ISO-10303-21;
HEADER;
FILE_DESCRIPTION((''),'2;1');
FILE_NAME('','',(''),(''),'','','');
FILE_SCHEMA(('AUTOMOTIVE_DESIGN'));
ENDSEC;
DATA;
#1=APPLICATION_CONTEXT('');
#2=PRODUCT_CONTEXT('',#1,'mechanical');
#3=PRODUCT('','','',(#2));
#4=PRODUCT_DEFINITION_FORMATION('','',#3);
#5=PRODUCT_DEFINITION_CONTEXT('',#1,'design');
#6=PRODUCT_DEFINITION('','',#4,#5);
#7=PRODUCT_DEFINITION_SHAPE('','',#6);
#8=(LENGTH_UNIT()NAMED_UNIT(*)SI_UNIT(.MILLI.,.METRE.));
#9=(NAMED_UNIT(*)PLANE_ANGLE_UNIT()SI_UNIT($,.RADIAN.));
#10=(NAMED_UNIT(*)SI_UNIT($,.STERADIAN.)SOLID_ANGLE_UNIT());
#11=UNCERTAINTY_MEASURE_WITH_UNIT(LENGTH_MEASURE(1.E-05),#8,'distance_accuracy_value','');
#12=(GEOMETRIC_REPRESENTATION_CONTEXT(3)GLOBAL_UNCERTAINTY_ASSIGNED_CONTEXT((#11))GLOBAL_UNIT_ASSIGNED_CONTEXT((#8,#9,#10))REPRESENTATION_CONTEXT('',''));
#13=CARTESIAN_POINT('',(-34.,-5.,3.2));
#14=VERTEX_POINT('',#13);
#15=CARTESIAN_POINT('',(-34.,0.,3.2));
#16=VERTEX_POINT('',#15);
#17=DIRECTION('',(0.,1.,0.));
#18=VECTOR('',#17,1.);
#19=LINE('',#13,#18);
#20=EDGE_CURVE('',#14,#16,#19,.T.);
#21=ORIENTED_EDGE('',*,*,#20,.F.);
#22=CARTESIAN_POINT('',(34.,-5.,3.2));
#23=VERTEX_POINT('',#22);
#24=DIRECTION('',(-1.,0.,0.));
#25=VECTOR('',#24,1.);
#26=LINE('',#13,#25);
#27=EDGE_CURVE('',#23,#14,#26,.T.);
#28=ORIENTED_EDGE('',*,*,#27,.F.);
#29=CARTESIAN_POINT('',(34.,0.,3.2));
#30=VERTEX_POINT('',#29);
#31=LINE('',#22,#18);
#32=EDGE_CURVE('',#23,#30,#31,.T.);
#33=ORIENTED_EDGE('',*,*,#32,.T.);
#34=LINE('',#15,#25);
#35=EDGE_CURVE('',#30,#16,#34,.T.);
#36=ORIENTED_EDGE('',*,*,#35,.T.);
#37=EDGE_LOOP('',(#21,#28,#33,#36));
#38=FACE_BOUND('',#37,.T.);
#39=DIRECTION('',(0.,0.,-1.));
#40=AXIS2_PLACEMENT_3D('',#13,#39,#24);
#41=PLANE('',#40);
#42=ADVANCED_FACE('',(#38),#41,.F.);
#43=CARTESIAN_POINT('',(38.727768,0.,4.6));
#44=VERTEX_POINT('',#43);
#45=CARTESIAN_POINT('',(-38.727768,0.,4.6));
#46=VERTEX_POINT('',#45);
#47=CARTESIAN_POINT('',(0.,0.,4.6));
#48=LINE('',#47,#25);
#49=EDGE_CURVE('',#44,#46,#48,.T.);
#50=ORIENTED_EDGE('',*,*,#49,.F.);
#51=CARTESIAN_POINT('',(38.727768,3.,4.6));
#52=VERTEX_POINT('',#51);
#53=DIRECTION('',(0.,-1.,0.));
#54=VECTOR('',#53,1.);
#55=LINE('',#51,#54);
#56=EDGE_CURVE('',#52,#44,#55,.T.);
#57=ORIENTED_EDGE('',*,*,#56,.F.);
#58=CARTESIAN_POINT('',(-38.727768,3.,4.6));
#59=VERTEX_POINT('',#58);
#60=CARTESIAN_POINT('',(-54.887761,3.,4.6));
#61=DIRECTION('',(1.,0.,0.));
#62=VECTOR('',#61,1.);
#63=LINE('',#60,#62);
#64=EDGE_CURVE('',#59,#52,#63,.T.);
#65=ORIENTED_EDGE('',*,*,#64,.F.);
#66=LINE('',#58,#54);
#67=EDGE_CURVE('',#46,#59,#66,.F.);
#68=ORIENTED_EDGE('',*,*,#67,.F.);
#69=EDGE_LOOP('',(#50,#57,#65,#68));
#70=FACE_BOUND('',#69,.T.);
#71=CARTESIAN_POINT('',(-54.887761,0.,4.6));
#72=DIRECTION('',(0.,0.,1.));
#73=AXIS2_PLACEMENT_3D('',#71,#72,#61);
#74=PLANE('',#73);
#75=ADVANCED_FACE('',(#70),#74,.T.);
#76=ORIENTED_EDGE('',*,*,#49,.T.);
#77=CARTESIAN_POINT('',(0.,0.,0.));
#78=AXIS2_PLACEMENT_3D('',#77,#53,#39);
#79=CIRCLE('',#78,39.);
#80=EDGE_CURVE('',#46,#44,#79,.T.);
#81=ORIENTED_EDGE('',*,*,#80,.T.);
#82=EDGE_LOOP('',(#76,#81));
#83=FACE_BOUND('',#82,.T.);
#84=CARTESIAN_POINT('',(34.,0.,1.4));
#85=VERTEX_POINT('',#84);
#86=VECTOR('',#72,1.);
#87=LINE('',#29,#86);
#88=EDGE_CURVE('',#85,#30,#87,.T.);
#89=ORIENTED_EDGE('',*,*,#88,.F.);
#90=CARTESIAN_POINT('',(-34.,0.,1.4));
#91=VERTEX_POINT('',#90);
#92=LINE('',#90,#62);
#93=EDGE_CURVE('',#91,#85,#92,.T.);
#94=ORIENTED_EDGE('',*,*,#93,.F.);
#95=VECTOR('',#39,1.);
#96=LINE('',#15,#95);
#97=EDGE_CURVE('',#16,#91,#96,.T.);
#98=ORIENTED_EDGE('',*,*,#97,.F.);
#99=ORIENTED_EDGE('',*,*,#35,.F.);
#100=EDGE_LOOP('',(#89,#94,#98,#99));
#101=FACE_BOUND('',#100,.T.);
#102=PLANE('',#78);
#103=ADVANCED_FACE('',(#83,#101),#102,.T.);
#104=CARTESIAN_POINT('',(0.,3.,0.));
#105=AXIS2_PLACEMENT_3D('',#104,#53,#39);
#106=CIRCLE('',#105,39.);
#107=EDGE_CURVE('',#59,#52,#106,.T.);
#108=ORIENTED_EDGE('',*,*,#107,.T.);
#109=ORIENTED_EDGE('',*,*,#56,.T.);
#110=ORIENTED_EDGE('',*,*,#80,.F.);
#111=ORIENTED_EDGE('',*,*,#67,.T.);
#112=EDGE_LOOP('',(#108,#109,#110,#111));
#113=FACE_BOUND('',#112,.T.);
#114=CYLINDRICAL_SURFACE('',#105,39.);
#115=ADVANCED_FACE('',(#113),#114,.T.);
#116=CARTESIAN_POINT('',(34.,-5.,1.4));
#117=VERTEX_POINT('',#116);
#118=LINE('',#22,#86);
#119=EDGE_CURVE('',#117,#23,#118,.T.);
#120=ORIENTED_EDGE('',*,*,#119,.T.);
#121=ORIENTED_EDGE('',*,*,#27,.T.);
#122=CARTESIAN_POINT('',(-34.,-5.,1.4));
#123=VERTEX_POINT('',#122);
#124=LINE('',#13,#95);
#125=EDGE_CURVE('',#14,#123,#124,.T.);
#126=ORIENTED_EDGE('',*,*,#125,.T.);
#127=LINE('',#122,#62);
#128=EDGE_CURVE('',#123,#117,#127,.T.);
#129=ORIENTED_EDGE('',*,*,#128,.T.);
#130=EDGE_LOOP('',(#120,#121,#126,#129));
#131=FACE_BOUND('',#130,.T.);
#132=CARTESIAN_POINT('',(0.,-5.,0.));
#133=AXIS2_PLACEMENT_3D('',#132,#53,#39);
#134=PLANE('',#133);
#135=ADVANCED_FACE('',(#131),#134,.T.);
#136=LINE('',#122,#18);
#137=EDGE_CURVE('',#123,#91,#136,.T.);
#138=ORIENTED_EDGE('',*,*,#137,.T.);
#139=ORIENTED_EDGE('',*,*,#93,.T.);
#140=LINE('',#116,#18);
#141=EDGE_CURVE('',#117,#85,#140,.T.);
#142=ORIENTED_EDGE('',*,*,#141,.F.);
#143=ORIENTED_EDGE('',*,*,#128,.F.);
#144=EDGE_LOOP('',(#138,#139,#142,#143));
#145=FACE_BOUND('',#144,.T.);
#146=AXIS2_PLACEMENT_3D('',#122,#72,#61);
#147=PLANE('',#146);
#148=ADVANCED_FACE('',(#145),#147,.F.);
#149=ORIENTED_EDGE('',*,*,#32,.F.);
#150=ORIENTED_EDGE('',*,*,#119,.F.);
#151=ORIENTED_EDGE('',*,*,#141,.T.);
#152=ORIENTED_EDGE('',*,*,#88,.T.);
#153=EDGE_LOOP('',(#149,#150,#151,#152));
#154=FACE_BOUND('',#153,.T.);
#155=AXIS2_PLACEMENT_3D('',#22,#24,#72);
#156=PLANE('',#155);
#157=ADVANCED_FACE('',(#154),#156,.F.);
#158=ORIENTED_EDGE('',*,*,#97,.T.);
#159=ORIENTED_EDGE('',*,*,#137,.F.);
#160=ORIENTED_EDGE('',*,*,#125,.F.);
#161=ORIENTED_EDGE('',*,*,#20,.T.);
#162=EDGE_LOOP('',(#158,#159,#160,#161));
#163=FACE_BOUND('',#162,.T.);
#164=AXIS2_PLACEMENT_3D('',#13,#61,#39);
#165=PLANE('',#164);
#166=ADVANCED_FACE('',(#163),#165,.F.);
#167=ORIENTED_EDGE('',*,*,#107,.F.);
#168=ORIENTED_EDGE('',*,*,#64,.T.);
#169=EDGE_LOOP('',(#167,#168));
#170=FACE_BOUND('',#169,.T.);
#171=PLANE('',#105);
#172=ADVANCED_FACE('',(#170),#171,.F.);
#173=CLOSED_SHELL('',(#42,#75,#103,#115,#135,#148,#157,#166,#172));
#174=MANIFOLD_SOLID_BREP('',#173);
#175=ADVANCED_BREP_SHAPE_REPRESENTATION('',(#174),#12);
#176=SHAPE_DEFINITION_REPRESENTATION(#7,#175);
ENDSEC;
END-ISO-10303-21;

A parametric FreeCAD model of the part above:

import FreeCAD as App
import Part
import Sketcher

V = App.Vector

doc = App.newDocument("Part")
params = doc.addObject("Spreadsheet::Sheet", "Params")
for row, (alias, value) in enumerate([
    ("sketch1_diameter", "78 mm"),
    ("pad1_length", "3 mm"),
    ("pocket1_length", "3 mm"),
    ("sketch3_width", "68 mm"),
    ("sketch3_height", "1.8 mm"),
    ("pad2_length", "5 mm"),
    ("sketch4_width", "68 mm"),
    ("sketch4_height", "1.8 mm"),
    ("pad3_length", "5 mm"),
], start=1):
    params.set(f"A{row}", alias)
    params.set(f"B{row}", "=" + value)
    params.setAlias(f"B{row}", alias)

body = doc.addObject("PartDesign::Body", "Body")

sketch1 = doc.addObject("Sketcher::SketchObject", "Sketch")
body.addObject(sketch1)
sketch1.AttachmentSupport = (doc.XZ_Plane, [""])
sketch1.MapMode = "FlatFace"
sketch1.addGeometry(Part.Circle(V(0, 0, 0), V(0, 0, 1), 39), False)
sketch1.addConstraint([
    Sketcher.Constraint("Coincident", 0, 3, -1, 1),
    Sketcher.Constraint("Diameter", 0, 78.0),
])
sketch1.setExpression("Constraints[1]", "Params.sketch1_diameter")
pad1 = doc.addObject("PartDesign::Pad", "Pad")
body.addObject(pad1)
pad1.Profile = sketch1
pad1.setExpression("Length", "Params.pad1_length")
pad1.Reversed = True

sketch2 = doc.addObject("Sketcher::SketchObject", "Sketch001")
body.addObject(sketch2)
sketch2.AttachmentSupport = (doc.XZ_Plane, [""])
sketch2.MapMode = "FlatFace"
sketch2.AttachmentOffset = App.Placement(V(0, 0, -3), App.Rotation())
sketch2.addGeometry([
    Part.LineSegment(V(-55, 5, 0), V(-55, 45, 0)),
    Part.LineSegment(V(-55, 45, 0), V(56, 45, 0)),
    Part.LineSegment(V(56, 45, 0), V(56, 5, 0)),
    Part.LineSegment(V(56, 5, 0), V(-55, 5, 0)),
], False)
sketch2.addConstraint([
    Sketcher.Constraint("Coincident", 0, 2, 1, 1),
    Sketcher.Constraint("Coincident", 1, 2, 2, 1),
    Sketcher.Constraint("Coincident", 2, 2, 3, 1),
    Sketcher.Constraint("Coincident", 3, 2, 0, 1),
    Sketcher.Constraint("Vertical", 0),
    Sketcher.Constraint("Horizontal", 1),
    Sketcher.Constraint("Vertical", 2),
    Sketcher.Constraint("Horizontal", 3),
    Sketcher.Constraint("DistanceY", -1, 1, 2, 2, 4.6),
    Sketcher.Constraint("DistanceX", 1, 1, 1, 2, 110.988466),
    Sketcher.Constraint("DistanceY", 0, 1, 0, 2, 40.729207),
    Sketcher.Constraint("DistanceX", 0, 2, -1, 1, 54.887761),
])
pocket1 = doc.addObject("PartDesign::Pocket", "Pocket")
body.addObject(pocket1)
pocket1.Profile = sketch2
pocket1.setExpression("Length", "Params.pocket1_length")
pocket1.Reversed = True

sketch3 = doc.addObject("Sketcher::SketchObject", "Sketch002")
body.addObject(sketch3)
sketch3.AttachmentSupport = (doc.XZ_Plane, [""])
sketch3.MapMode = "FlatFace"
sketch3.addGeometry([
    Part.LineSegment(V(-34, 3.2, 0), V(-34, 1.4, 0)),
    Part.LineSegment(V(-34, 1.4, 0), V(34, 1.4, 0)),
    Part.LineSegment(V(34, 1.4, 0), V(34, 3.2, 0)),
    Part.LineSegment(V(34, 3.2, 0), V(-34, 3.2, 0)),
], False)
sketch3.addConstraint([
    Sketcher.Constraint("Coincident", 0, 2, 1, 1),
    Sketcher.Constraint("Coincident", 1, 2, 2, 1),
    Sketcher.Constraint("Coincident", 2, 2, 3, 1),
    Sketcher.Constraint("Coincident", 3, 2, 0, 1),
    Sketcher.Constraint("Vertical", 0),
    Sketcher.Constraint("Horizontal", 1),
    Sketcher.Constraint("Vertical", 2),
    Sketcher.Constraint("Horizontal", 3),
    Sketcher.Constraint("DistanceX", 1, 1, 1, 2, 68.0),
    Sketcher.Constraint("DistanceY", 0, 2, 0, 1, 1.8),
    Sketcher.Constraint("DistanceX", 0, 2, -1, 1, 34.0),
    Sketcher.Constraint("DistanceY", -1, 1, 0, 2, 1.4),
])
sketch3.setExpression("Constraints[8]", "Params.sketch3_width")
sketch3.setExpression("Constraints[9]", "Params.sketch3_height")
pad2 = doc.addObject("PartDesign::Pad", "Pad001")
body.addObject(pad2)
pad2.Profile = sketch3
pad2.setExpression("Length", "Params.pad2_length")

sketch4 = doc.addObject("Sketcher::SketchObject", "Sketch003")
body.addObject(sketch4)
sketch4.AttachmentSupport = (doc.XZ_Plane, [""])
sketch4.MapMode = "FlatFace"
sketch4.addGeometry([
    Part.LineSegment(V(-34, 3.2, 0), V(-34, 1.4, 0)),
    Part.LineSegment(V(-34, 1.4, 0), V(34, 1.4, 0)),
    Part.LineSegment(V(34, 1.4, 0), V(34, 3.2, 0)),
    Part.LineSegment(V(34, 3.2, 0), V(-34, 3.2, 0)),
], False)
sketch4.addConstraint([
    Sketcher.Constraint("Coincident", 0, 2, 1, 1),
    Sketcher.Constraint("Coincident", 1, 2, 2, 1),
    Sketcher.Constraint("Coincident", 2, 2, 3, 1),
    Sketcher.Constraint("Coincident", 3, 2, 0, 1),
    Sketcher.Constraint("Vertical", 0),
    Sketcher.Constraint("Horizontal", 1),
    Sketcher.Constraint("Vertical", 2),
    Sketcher.Constraint("Horizontal", 3),
    Sketcher.Constraint("DistanceX", 1, 1, 1, 2, 68.0),
    Sketcher.Constraint("DistanceY", 0, 2, 0, 1, 1.8),
    Sketcher.Constraint("DistanceX", 0, 2, -1, 1, 34.0),
    Sketcher.Constraint("DistanceY", -1, 1, 0, 2, 1.4),
])
sketch4.setExpression("Constraints[8]", "Params.sketch4_width")
sketch4.setExpression("Constraints[9]", "Params.sketch4_height")
pad3 = doc.addObject("PartDesign::Pad", "Pad002")
body.addObject(pad3)
pad3.Profile = sketch4
pad3.setExpression("Length", "Params.pad3_length")

doc.recompute()
